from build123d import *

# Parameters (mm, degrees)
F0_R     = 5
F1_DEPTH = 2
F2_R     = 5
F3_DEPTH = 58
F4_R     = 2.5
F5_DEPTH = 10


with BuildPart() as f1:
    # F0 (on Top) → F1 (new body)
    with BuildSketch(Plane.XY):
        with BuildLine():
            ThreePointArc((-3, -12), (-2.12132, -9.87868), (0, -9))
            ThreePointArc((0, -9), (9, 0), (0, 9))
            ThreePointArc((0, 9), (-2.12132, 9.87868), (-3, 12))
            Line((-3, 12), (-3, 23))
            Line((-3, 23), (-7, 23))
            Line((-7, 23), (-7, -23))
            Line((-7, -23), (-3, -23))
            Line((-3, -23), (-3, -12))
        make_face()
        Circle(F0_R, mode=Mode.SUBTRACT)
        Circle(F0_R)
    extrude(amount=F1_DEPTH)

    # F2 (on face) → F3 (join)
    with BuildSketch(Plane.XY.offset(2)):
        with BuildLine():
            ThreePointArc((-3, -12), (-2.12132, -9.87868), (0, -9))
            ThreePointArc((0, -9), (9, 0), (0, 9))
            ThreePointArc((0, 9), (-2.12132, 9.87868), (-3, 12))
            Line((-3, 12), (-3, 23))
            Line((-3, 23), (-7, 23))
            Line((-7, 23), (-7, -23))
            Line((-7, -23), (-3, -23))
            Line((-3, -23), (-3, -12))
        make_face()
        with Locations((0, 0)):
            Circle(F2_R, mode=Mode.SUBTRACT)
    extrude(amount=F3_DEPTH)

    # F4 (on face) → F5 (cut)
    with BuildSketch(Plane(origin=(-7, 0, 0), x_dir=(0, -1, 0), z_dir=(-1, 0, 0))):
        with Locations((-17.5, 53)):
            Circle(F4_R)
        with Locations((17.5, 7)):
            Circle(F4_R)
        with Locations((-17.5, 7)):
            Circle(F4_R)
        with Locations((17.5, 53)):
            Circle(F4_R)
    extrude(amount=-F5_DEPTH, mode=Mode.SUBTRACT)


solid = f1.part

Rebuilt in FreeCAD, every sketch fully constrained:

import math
import FreeCAD as App
import Part
import Sketcher
from FreeCAD import Vector
Q = App.Units.Quantity

doc = App.newDocument("Part")
body = doc.addObject("PartDesign::Body", "Body")

# Sketch on XY plane
sketch1 = body.newObject("Sketcher::SketchObject", "Sketch")
sketch1.AttachmentSupport = (doc.getObject("XY_Plane"), [""])
sketch1.MapMode = "FlatFace"
sketch1.addGeometry([
    Part.ArcOfCircle(Part.Circle(Vector(0.000001, -12.000001, 0), Vector(0, 0, 1), 3.000001), math.radians(90.000022), math.radians(179.999978)),  # 0
    Part.ArcOfCircle(Part.Circle(Vector(0, 0, 0), Vector(0, 0, 1), 9), math.radians(-90), math.radians(90)),  # 1
    Part.ArcOfCircle(Part.Circle(Vector(0.000001, 12.000001, 0), Vector(0, 0, 1), 3.000001), math.radians(-179.999978), math.radians(-90.000022)),  # 2
    Part.LineSegment(Vector(-3, 12, 0), Vector(-3, 23, 0)),  # 3
    Part.LineSegment(Vector(-3, 23, 0), Vector(-7, 23, 0)),  # 4
    Part.LineSegment(Vector(-7, 23, 0), Vector(-7, -23, 0)),  # 5
    Part.LineSegment(Vector(-7, -23, 0), Vector(-3, -23, 0)),  # 6
    Part.LineSegment(Vector(-3, -23, 0), Vector(-3, -12, 0)),  # 7
], False)
sketch1.addConstraint([
    Sketcher.Constraint("Tangent", 0, 1, 1, 1),
    Sketcher.Constraint("Tangent", 1, 2, 2, 2),
    Sketcher.Constraint("Tangent", 2, 1, 3, 1),
    Sketcher.Constraint("Coincident", 3, 2, 4, 1),
    Sketcher.Constraint("Coincident", 4, 2, 5, 1),
    Sketcher.Constraint("Coincident", 5, 2, 6, 1),
    Sketcher.Constraint("Coincident", 6, 2, 7, 1),
    Sketcher.Constraint("Tangent", 7, 2, 0, 2),
    Sketcher.Constraint("Vertical", 3),
    Sketcher.Constraint("Horizontal", 4),
    Sketcher.Constraint("Vertical", 5),
    Sketcher.Constraint("Horizontal", 6),
    Sketcher.Constraint("Vertical", 7),
    Sketcher.Constraint("Coincident", 1, 3, -1, 1),
    Sketcher.Constraint("Equal", 0, 2),
    Sketcher.Constraint("Symmetric", 3, 2, 6, 2, -1),
    Sketcher.Constraint("PointOnObject", 0, 3, -2),
    Sketcher.Constraint("Radius", 0, Q("3.000001 mm")),
    Sketcher.Constraint("Radius", 1, Q("9 mm")),
    Sketcher.Constraint("DistanceX", 4, 2, 4, 1, Q("4 mm")),
    Sketcher.Constraint("DistanceY", 3, 1, 3, 2, Q("11 mm")),
])
pad1 = body.newObject("PartDesign::Pad", "Pad")
pad1.Profile = sketch1
pad1.Length = 2

# Sketch on XY plane
sketch2 = body.newObject("Sketcher::SketchObject", "Sketch001")
sketch2.AttachmentSupport = (doc.getObject("XY_Plane"), [""])
sketch2.MapMode = "FlatFace"
sketch2.AttachmentOffset = App.Placement(Vector(0, 0, 2), App.Rotation())
sketch2.addGeometry([
    Part.ArcOfCircle(Part.Circle(Vector(0.000001, -12.000001, 0), Vector(0, 0, 1), 3.000001), math.radians(90.000022), math.radians(179.999978)),  # 0
    Part.ArcOfCircle(Part.Circle(Vector(0, 0, 0), Vector(0, 0, 1), 9), math.radians(-90), math.radians(90)),  # 1
    Part.ArcOfCircle(Part.Circle(Vector(0.000001, 12.000001, 0), Vector(0, 0, 1), 3.000001), math.radians(-179.999978), math.radians(-90.000022)),  # 2
    Part.LineSegment(Vector(-3, 12, 0), Vector(-3, 23, 0)),  # 3
    Part.LineSegment(Vector(-3, 23, 0), Vector(-7, 23, 0)),  # 4
    Part.LineSegment(Vector(-7, 23, 0), Vector(-7, -23, 0)),  # 5
    Part.LineSegment(Vector(-7, -23, 0), Vector(-3, -23, 0)),  # 6
    Part.LineSegment(Vector(-3, -23, 0), Vector(-3, -12, 0)),  # 7
    Part.Circle(Vector(0, 0, 0), Vector(0, 0, 1), 5),  # 8
], False)
sketch2.addConstraint([
    Sketcher.Constraint("Tangent", 0, 1, 1, 1),
    Sketcher.Constraint("Tangent", 1, 2, 2, 2),
    Sketcher.Constraint("Tangent", 2, 1, 3, 1),
    Sketcher.Constraint("Coincident", 3, 2, 4, 1),
    Sketcher.Constraint("Coincident", 4, 2, 5, 1),
    Sketcher.Constraint("Coincident", 5, 2, 6, 1),
    Sketcher.Constraint("Coincident", 6, 2, 7, 1),
    Sketcher.Constraint("Tangent", 7, 2, 0, 2),
    Sketcher.Constraint("Vertical", 3),
    Sketcher.Constraint("Horizontal", 4),
    Sketcher.Constraint("Vertical", 5),
    Sketcher.Constraint("Horizontal", 6),
    Sketcher.Constraint("Vertical", 7),
    Sketcher.Constraint("Coincident", 1, 3, -1, 1),
    Sketcher.Constraint("Coincident", 8, 3, -1, 1),
    Sketcher.Constraint("Equal", 0, 2),
    Sketcher.Constraint("Symmetric", 3, 2, 6, 2, -1),
    Sketcher.Constraint("PointOnObject", 0, 3, -2),
    Sketcher.Constraint("Diameter", 8, Q("10 mm")),
    Sketcher.Constraint("Radius", 0, Q("3.000001 mm")),
    Sketcher.Constraint("Radius", 1, Q("9 mm")),
    Sketcher.Constraint("DistanceX", 4, 2, 4, 1, Q("4 mm")),
    Sketcher.Constraint("DistanceY", 3, 1, 3, 2, Q("11 mm")),
])
pad2 = body.newObject("PartDesign::Pad", "Pad001")
pad2.Profile = sketch2
pad2.Length = 58

# Sketch on YZ plane
sketch3 = body.newObject("Sketcher::SketchObject", "Sketch002")
sketch3.AttachmentSupport = (doc.getObject("YZ_Plane"), [""])
sketch3.MapMode = "FlatFace"
sketch3.AttachmentOffset = App.Placement(Vector(0, 0, -7), App.Rotation())
sketch3.addGeometry([
    Part.Circle(Vector(17.5, 53, 0), Vector(0, 0, 1), 2.5),
    Part.Circle(Vector(-17.5, 7, 0), Vector(0, 0, 1), 2.5),
    Part.Circle(Vector(17.5, 7, 0), Vector(0, 0, 1), 2.5),
    Part.Circle(Vector(-17.5, 53, 0), Vector(0, 0, 1), 2.5),
], False)
sketch3.addConstraint([
    Sketcher.Constraint("Equal", 0, 1),
    Sketcher.Constraint("Equal", 1, 2),
    Sketcher.Constraint("Equal", 2, 3),
    Sketcher.Constraint("Symmetric", 1, 3, 2, 3, -2),
    Sketcher.Constraint("Symmetric", 0, 3, 3, 3, -2),
    Sketcher.Constraint("Vertical", 0, 3, 2, 3),
    Sketcher.Constraint("Diameter", 0, Q("5 mm")),
    Sketcher.Constraint("DistanceY", -1, 1, 0, 3, Q("53 mm")),
    Sketcher.Constraint("DistanceY", -1, 1, 1, 3, Q("7 mm")),
    Sketcher.Constraint("DistanceX", 1, 3, 0, 3, Q("35 mm")),
])
pocket1 = body.newObject("PartDesign::Pocket", "Pocket")
pocket1.Profile = sketch3
pocket1.Length = 10
pocket1.Reversed = True

doc.recompute()
